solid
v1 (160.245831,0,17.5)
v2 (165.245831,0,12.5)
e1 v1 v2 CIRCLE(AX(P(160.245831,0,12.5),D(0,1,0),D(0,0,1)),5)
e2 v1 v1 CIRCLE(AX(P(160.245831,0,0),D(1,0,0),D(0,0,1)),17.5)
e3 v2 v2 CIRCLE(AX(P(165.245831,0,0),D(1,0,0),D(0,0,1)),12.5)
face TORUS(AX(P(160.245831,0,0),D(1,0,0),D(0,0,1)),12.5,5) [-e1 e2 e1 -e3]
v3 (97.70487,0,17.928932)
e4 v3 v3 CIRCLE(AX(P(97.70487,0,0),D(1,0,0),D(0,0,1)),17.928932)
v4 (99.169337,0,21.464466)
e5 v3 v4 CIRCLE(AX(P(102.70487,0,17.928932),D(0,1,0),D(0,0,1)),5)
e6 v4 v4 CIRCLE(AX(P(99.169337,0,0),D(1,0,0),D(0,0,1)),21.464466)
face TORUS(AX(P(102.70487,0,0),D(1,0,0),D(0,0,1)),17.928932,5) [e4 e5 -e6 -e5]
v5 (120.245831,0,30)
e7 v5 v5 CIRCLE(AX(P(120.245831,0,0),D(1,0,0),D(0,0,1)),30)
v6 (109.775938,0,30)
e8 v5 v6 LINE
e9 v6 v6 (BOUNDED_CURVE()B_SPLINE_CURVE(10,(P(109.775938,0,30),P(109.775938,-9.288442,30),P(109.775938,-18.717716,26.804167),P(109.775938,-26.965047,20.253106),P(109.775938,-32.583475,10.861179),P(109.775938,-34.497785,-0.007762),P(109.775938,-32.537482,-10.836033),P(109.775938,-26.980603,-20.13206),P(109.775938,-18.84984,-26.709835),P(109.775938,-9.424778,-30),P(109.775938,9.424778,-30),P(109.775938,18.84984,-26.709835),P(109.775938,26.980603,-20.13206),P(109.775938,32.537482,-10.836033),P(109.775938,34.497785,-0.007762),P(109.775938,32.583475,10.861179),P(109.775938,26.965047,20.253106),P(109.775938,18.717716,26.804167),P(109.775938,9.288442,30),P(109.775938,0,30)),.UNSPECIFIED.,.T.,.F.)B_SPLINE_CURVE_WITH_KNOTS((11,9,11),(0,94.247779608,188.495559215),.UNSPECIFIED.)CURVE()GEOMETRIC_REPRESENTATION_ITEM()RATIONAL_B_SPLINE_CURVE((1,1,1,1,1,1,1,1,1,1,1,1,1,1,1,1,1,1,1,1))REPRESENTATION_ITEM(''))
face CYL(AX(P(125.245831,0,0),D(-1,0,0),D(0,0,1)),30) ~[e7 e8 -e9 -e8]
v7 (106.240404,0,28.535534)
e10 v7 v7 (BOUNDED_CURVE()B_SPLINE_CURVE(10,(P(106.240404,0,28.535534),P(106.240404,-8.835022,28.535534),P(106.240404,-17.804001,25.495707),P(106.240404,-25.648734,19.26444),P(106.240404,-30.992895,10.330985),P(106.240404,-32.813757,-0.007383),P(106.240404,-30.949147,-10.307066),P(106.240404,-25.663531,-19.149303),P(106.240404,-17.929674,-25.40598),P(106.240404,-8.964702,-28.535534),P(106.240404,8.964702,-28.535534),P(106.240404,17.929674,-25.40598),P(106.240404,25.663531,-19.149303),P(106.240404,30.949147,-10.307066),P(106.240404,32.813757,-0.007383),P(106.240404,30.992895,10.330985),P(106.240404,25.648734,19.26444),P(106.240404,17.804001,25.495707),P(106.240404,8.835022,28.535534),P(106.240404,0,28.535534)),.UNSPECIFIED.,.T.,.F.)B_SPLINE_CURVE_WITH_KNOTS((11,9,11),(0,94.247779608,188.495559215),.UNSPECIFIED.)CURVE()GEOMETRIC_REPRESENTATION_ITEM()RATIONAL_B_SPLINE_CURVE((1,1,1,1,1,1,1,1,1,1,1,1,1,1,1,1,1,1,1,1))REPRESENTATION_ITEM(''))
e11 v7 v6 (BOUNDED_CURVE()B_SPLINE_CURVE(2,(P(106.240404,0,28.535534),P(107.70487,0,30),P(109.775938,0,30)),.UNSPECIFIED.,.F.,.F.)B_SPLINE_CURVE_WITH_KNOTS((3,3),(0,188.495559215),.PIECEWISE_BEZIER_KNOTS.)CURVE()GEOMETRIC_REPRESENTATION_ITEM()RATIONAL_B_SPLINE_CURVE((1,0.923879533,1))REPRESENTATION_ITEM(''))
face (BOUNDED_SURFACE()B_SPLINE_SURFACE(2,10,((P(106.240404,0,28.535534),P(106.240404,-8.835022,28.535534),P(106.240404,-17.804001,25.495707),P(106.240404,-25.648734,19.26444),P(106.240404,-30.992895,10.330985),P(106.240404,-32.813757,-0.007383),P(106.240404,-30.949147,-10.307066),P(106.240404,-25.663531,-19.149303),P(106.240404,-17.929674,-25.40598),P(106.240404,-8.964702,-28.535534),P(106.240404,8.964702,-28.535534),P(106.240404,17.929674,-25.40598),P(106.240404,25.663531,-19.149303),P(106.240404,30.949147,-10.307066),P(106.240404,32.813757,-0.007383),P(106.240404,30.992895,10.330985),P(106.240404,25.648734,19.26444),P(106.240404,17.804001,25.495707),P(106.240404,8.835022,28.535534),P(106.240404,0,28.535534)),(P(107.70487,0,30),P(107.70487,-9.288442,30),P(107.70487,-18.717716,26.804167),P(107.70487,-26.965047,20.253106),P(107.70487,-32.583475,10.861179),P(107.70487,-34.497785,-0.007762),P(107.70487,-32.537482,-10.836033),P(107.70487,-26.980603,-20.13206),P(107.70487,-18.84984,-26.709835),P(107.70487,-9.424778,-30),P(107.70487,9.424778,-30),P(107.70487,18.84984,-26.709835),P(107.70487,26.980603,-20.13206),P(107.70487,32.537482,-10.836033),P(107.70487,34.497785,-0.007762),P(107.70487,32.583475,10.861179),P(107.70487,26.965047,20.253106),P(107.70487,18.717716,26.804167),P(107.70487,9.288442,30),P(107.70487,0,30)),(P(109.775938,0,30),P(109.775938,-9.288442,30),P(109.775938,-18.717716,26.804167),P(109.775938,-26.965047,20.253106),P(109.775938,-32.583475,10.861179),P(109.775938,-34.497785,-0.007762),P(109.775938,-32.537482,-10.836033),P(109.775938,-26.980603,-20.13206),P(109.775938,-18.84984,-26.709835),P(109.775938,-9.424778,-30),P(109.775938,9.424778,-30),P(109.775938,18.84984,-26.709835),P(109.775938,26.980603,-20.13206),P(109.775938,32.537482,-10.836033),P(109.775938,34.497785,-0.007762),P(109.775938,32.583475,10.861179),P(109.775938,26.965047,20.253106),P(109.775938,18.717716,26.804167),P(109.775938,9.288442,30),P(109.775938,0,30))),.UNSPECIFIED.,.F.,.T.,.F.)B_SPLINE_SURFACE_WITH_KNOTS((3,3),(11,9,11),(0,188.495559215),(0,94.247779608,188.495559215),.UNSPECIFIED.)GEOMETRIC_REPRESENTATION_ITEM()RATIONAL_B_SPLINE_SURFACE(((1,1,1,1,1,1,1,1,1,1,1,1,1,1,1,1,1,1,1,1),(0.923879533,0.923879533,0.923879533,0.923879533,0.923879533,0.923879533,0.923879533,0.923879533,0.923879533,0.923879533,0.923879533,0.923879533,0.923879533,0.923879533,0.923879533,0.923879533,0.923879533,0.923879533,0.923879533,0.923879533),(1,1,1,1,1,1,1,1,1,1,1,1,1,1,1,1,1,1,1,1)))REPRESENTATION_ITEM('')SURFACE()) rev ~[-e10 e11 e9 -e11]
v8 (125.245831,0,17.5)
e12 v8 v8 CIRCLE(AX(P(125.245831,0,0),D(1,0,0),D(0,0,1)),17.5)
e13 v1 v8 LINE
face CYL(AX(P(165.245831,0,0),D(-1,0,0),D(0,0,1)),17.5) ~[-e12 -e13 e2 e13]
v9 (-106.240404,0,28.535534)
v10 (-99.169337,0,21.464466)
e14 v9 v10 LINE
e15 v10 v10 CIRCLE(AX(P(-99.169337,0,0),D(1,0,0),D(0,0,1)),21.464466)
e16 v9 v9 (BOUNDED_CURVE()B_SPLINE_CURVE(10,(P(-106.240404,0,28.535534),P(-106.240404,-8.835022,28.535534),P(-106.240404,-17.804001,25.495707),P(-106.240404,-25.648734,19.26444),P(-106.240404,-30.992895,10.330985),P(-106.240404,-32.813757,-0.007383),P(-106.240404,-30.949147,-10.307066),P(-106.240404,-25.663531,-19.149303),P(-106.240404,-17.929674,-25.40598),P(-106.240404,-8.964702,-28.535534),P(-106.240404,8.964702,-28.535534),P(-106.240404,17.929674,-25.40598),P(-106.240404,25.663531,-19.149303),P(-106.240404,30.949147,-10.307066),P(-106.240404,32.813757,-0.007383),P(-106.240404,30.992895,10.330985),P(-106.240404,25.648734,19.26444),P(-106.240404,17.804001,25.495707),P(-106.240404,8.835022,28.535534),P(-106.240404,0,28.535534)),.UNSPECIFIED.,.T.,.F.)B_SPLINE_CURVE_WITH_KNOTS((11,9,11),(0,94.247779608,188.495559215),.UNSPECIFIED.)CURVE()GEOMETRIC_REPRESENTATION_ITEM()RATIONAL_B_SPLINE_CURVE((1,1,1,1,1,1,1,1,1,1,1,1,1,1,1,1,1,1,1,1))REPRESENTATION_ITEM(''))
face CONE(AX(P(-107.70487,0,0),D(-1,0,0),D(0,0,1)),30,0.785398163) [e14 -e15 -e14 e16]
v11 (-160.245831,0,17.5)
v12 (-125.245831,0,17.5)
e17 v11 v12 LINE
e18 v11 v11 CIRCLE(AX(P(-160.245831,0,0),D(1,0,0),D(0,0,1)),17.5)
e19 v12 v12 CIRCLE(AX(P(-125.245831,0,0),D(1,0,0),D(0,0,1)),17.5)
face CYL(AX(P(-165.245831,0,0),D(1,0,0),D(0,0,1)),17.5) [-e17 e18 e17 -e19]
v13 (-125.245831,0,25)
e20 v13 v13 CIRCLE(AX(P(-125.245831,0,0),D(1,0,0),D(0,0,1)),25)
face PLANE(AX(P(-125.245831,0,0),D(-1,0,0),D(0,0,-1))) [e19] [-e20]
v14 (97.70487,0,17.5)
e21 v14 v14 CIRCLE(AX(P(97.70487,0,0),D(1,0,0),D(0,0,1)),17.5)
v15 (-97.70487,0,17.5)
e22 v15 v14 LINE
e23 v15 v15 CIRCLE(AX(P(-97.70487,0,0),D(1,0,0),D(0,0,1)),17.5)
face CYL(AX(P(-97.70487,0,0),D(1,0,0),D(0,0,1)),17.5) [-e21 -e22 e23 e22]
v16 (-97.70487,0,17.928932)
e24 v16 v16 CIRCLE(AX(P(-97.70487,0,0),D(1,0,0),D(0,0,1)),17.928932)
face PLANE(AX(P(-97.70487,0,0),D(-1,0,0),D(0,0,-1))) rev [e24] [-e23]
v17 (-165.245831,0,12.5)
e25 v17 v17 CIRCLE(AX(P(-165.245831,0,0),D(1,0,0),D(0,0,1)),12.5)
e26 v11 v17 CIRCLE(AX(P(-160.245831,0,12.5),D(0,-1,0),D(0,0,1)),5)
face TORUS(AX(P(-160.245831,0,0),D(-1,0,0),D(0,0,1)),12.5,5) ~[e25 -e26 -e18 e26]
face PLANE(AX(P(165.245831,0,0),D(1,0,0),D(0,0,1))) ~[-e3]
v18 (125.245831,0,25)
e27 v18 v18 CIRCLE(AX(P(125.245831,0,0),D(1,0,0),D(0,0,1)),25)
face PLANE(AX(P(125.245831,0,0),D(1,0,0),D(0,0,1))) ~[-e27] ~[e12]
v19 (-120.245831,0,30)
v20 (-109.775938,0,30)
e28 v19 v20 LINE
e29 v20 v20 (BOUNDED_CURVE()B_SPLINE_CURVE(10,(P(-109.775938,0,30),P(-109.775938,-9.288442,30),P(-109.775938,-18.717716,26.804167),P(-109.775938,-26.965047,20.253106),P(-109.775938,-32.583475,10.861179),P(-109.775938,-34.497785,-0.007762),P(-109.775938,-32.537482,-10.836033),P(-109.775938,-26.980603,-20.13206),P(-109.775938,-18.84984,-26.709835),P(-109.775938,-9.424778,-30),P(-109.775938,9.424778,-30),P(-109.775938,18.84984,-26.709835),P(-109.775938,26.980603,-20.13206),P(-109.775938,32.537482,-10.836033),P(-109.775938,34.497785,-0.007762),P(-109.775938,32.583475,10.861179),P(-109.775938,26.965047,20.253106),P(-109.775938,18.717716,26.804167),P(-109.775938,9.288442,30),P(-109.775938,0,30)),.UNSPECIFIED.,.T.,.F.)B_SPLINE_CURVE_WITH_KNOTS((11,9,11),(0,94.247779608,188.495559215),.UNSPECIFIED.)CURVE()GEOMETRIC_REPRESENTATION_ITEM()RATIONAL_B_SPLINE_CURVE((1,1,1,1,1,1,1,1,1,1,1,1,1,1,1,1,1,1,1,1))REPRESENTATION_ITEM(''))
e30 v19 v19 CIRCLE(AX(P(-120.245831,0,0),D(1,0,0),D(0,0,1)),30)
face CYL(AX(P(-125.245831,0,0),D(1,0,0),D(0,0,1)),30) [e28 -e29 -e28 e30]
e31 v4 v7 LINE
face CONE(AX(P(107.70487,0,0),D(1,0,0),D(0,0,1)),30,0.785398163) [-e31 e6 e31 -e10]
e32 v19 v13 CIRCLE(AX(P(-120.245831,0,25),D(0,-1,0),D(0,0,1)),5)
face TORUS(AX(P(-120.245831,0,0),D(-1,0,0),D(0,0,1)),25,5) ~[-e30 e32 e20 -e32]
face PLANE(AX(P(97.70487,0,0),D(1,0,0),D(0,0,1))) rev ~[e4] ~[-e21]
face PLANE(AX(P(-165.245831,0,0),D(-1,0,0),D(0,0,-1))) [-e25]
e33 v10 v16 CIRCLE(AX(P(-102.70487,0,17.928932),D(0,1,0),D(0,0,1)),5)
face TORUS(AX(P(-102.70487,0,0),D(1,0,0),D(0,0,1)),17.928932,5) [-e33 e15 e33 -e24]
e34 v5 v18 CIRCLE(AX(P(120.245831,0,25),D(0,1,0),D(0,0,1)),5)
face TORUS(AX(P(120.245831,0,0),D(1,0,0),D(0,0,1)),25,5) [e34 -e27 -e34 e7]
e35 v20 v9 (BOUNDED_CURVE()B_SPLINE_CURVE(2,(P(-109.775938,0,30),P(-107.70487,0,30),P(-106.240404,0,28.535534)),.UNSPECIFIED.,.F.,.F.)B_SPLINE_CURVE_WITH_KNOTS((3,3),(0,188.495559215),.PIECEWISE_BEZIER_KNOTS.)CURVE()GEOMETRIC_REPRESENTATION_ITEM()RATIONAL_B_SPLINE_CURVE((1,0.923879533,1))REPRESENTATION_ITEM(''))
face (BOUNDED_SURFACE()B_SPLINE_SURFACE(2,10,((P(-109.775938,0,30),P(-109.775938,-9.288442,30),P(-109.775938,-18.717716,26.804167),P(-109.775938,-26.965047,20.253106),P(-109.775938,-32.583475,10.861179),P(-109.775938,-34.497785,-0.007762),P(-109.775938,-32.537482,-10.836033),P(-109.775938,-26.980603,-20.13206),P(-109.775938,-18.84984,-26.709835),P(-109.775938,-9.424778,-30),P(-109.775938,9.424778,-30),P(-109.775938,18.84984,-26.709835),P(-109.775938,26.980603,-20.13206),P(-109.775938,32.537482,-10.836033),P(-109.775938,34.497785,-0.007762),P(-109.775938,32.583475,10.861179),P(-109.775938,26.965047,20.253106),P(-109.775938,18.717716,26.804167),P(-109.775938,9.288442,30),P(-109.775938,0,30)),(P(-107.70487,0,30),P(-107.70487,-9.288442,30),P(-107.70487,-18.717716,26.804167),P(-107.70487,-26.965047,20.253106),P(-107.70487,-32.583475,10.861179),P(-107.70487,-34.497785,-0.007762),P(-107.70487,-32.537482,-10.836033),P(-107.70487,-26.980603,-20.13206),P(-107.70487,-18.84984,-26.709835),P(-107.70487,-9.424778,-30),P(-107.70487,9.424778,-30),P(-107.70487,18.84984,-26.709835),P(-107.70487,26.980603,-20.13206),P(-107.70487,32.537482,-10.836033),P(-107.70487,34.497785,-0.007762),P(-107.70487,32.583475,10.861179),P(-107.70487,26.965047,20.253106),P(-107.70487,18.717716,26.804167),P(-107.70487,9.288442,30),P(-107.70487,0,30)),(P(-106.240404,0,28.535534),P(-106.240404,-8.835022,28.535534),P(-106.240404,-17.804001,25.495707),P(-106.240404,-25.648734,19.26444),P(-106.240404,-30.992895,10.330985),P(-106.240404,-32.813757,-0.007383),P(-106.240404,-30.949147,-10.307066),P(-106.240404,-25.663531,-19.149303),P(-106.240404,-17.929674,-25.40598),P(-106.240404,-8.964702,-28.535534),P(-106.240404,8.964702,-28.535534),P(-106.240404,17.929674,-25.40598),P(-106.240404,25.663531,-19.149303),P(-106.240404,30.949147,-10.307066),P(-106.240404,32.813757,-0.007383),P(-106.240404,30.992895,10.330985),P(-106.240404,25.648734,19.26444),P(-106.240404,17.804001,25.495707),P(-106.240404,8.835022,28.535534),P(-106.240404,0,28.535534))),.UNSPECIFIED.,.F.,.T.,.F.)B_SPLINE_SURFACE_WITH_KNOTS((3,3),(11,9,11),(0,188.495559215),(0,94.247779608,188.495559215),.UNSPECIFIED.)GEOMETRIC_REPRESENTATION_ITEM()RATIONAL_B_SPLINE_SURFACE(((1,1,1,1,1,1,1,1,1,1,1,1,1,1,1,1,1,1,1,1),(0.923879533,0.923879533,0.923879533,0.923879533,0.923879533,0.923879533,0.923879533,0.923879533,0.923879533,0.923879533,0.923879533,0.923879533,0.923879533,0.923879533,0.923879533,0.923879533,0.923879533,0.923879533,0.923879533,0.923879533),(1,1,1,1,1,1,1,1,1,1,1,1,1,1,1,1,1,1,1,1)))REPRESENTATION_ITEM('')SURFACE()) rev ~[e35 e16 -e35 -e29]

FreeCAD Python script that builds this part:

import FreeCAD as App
import Part
import Sketcher
from FreeCAD import Vector
Q = App.Units.Quantity


def edges_at(feature, points):
    """Names of the edges that pass closest to the given points."""
    edges = feature.Shape.Edges
    near = lambda p: min(range(len(edges)), key=lambda i: edges[i].distToShape(Part.Vertex(*p))[0])
    return sorted({f"Edge{near(p) + 1}" for p in points})

doc = App.newDocument("Part")
body = doc.addObject("PartDesign::Body", "Body")

# Sketch on XZ plane
sketch1 = body.newObject("Sketcher::SketchObject", "Sketch")
sketch1.AttachmentSupport = (doc.getObject("XZ_Plane"), [""])
sketch1.MapMode = "FlatFace"
sketch1.addGeometry([
    Part.LineSegment(Vector(0, 18, 0), Vector(0, 0, 0)),  # 0
    Part.LineSegment(Vector(0, 0, 0), Vector(165, 0, 0)),  # 1
    Part.LineSegment(Vector(165, 0, 0), Vector(165, 18, 0)),  # 2
    Part.LineSegment(Vector(165, 18, 0), Vector(125, 18, 0)),  # 3
    Part.LineSegment(Vector(125, 18, 0), Vector(125, 30, 0)),  # 4
    Part.LineSegment(Vector(125, 30, 0), Vector(98, 30, 0)),  # 5
    Part.LineSegment(Vector(98, 30, 0), Vector(98, 18, 0)),  # 6
    Part.LineSegment(Vector(98, 18, 0), Vector(0, 18, 0)),  # 7
], False)
sketch1.addConstraint([
    Sketcher.Constraint("Coincident", 0, 2, 1, 1),
    Sketcher.Constraint("Coincident", 1, 2, 2, 1),
    Sketcher.Constraint("Coincident", 2, 2, 3, 1),
    Sketcher.Constraint("Coincident", 3, 2, 4, 1),
    Sketcher.Constraint("Coincident", 4, 2, 5, 1),
    Sketcher.Constraint("Coincident", 5, 2, 6, 1),
    Sketcher.Constraint("Coincident", 6, 2, 7, 1),
    Sketcher.Constraint("Coincident", 7, 2, 0, 1),
    Sketcher.Constraint("Vertical", 0),
    Sketcher.Constraint("Horizontal", 1),
    Sketcher.Constraint("Vertical", 2),
    Sketcher.Constraint("Horizontal", 3),
    Sketcher.Constraint("Vertical", 4),
    Sketcher.Constraint("Horizontal", 5),
    Sketcher.Constraint("Vertical", 6),
    Sketcher.Constraint("Horizontal", 7),
    Sketcher.Constraint("Coincident", 0, 2, -1, 1),
    Sketcher.Constraint("Horizontal", 3, 2, 6, 2),
    Sketcher.Constraint("DistanceX", 3, 2, 3, 1, Q("40 mm")),
    Sketcher.Constraint("DistanceY", 0, 2, 0, 1, Q("17.5 mm")),
    Sketcher.Constraint("DistanceY", 4, 1, 4, 2, Q("12.5 mm")),
    Sketcher.Constraint("DistanceX", 1, 1, 1, 2, Q("165.245831 mm")),
    Sketcher.Constraint("DistanceX", 5, 2, 5, 1, Q("27.540961 mm")),
])
revolution = body.newObject("PartDesign::Revolution", "Revolution")
revolution.Profile = sketch1
revolution.ReferenceAxis = (sketch1, ["H_Axis"])
revolution.Angle = 360
body2 = doc.addObject("PartDesign::Body", "Body001")
doc.recompute()

body2.BaseFeature = body
doc.recompute()

mirroring = doc.addObject("Part::Mirroring", "Mirroring")
mirroring.Source = body
mirroring.Base = Vector(0, 0, 0)
mirroring.Normal = Vector(-1, 0, 0)
body3 = doc.addObject("PartDesign::Body", "Body002")
body3.BaseFeature = mirroring
boolean = body2.newObject("PartDesign::Boolean", "Boolean")
boolean.Type = "Fuse"
boolean.addObjects([body3])
doc.recompute()

chamfer = body2.newObject("PartDesign::Chamfer", "Chamfer")
chamfer.Base = (boolean, edges_at(boolean, [(97.705, 0, -30), (-97.705, 0, -30)]))
chamfer.Size = 10
doc.recompute()

fillet = body2.newObject("PartDesign::Fillet", "Fillet")
fillet.Base = (chamfer, edges_at(chamfer, [
    (-107.705, 0, -30),
    (-97.705, 0, -20),
    (97.705, 0, -20),
    (107.705, 0, -30),
]))
fillet.Radius = 5
doc.recompute()

fillet2 = body2.newObject("PartDesign::Fillet", "Fillet001")
fillet2.Base = (fillet, edges_at(fillet, [
    (-165.246, 0, -17.5),
    (165.246, 0, -17.5),
    (125.246, 0, -30),
    (-125.246, 0, -30),
]))
fillet2.Radius = 5
mirroring.Visibility = False

doc.recompute()
